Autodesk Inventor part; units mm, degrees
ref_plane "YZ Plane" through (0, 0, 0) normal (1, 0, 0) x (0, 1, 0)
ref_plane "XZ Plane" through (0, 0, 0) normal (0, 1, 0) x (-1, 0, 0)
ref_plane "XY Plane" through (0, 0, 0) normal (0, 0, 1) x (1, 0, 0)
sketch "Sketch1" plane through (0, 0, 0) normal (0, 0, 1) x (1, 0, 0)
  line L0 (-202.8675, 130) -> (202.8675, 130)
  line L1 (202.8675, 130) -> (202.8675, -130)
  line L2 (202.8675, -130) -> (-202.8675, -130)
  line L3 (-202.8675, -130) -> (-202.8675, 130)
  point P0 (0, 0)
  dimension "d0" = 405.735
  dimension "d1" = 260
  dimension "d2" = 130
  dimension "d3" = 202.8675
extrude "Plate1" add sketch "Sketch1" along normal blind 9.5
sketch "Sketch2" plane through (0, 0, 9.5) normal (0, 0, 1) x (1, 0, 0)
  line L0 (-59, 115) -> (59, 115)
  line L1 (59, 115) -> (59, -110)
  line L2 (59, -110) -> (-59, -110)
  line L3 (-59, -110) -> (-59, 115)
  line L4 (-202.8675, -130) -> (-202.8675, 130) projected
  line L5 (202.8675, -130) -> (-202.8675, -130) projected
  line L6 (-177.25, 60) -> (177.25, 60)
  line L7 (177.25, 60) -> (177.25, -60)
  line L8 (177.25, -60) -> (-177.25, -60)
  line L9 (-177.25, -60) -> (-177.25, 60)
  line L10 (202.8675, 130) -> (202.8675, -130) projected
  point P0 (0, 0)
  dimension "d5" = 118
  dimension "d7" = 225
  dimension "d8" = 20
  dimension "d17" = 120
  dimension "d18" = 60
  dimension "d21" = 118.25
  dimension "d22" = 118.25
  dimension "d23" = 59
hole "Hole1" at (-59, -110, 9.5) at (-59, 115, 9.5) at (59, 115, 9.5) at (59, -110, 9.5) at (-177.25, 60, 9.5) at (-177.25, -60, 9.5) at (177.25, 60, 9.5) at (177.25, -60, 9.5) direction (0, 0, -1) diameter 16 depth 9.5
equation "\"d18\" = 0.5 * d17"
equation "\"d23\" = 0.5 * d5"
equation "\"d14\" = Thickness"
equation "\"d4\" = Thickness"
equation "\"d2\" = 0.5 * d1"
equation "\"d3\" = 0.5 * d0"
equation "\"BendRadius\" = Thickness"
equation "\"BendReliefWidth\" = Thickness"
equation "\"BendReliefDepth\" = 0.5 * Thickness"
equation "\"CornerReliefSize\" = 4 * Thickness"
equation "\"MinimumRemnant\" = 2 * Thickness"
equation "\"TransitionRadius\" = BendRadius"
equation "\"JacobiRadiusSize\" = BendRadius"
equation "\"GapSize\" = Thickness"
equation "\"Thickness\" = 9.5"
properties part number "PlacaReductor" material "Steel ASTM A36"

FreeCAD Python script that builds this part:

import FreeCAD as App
import Part
import Sketcher
Q = App.Units.Quantity


def add_polygon(sketch, points):
    """Adds a closed chain of lines whose ends are joined by coincident constraints."""
    first, n = sketch.GeometryCount, len(points)
    for a, b in zip(points, points[1:] + points[:1]):
        sketch.addGeometry(Part.LineSegment(App.Vector(*a, 0), App.Vector(*b, 0)), False)
    for i in range(n):
        sketch.addConstraint(Sketcher.Constraint("Coincident", first + i, 2, first + (i + 1) % n, 1))

doc = App.newDocument("Part")
body = doc.addObject("PartDesign::Body", "Body")

sketch1 = doc.addObject("Sketcher::SketchObject", "Sketch")
body.addObject(sketch1)
sketch1.AttachmentSupport = (doc.XY_Plane, [""])
sketch1.MapMode = "FlatFace"
add_polygon(sketch1, [(203, 130), (-203, 130), (-203, -130), (203, -130)])
sketch1.addConstraint([
    Sketcher.Constraint("Horizontal", 0),
    Sketcher.Constraint("Vertical", 1),
    Sketcher.Constraint("Horizontal", 2),
    Sketcher.Constraint("Vertical", 3),
    Sketcher.Constraint("Symmetric", 0, 2, 2, 2, -1, 1),
    Sketcher.Constraint("DistanceY", 1, 2, 1, 1, Q("260 mm")),
    Sketcher.Constraint("DistanceX", 0, 2, 0, 1, Q("405.735 mm")),
])
pad1 = doc.addObject("PartDesign::Pad", "Pad")
body.addObject(pad1)
pad1.Profile = sketch1
pad1.Length = 9.5

sketch2 = doc.addObject("Sketcher::SketchObject", "Sketch001")
body.addObject(sketch2)
sketch2.AttachmentSupport = (doc.XY_Plane, [""])
sketch2.MapMode = "FlatFace"
sketch2.AttachmentOffset = App.Placement(App.Vector(0, 0, 9.5), App.Rotation())
sketch2.addGeometry([
    Part.Circle(App.Vector(-59, -110, 0), App.Vector(0, 0, 1), 8),
    Part.Circle(App.Vector(-59, 115, 0), App.Vector(0, 0, 1), 8),
    Part.Circle(App.Vector(59, 115, 0), App.Vector(0, 0, 1), 8),
    Part.Circle(App.Vector(59, -110, 0), App.Vector(0, 0, 1), 8),
    Part.Circle(App.Vector(-177, 60, 0), App.Vector(0, 0, 1), 8),
    Part.Circle(App.Vector(-177, -60, 0), App.Vector(0, 0, 1), 8),
    Part.Circle(App.Vector(177, 60, 0), App.Vector(0, 0, 1), 8),
    Part.Circle(App.Vector(177, -60, 0), App.Vector(0, 0, 1), 8),
], False)
sketch2.addConstraint([
    Sketcher.Constraint("Equal", 0, 1),
    Sketcher.Constraint("Equal", 1, 2),
    Sketcher.Constraint("Equal", 2, 3),
    Sketcher.Constraint("Equal", 3, 4),
    Sketcher.Constraint("Equal", 4, 5),
    Sketcher.Constraint("Equal", 5, 6),
    Sketcher.Constraint("Equal", 6, 7),
    Sketcher.Constraint("Symmetric", 5, 3, 6, 3, -1, 1),
    Sketcher.Constraint("Symmetric", 4, 3, 7, 3, -1, 1),
    Sketcher.Constraint("Symmetric", 1, 3, 2, 3, -2),
    Sketcher.Constraint("Symmetric", 0, 3, 3, 3, -2),
    Sketcher.Constraint("Symmetric", 4, 3, 6, 3, -2),
    Sketcher.Constraint("Vertical", 0, 3, 1, 3),
    Sketcher.Constraint("Diameter", 0, Q("16 mm")),
    Sketcher.Constraint("DistanceX", 0, 3, -1, 1, Q("59 mm")),
    Sketcher.Constraint("DistanceY", 0, 3, -1, 1, Q("110 mm")),
    Sketcher.Constraint("DistanceY", -1, 1, 1, 3, Q("115 mm")),
    Sketcher.Constraint("DistanceY", -1, 1, 4, 3, Q("60 mm")),
    Sketcher.Constraint("DistanceX", 4, 3, 6, 3, Q("354.5 mm")),
])
doc.recompute()
hole = doc.addObject("PartDesign::Hole", "Hole")
body.addObject(hole)
hole.Profile = sketch2
hole.ThreadType = "None"
hole.Diameter = 16
hole.DepthType = "Dimension"
hole.Depth = 9.5
hole.DrillPoint = "Flat"

doc.recompute()
